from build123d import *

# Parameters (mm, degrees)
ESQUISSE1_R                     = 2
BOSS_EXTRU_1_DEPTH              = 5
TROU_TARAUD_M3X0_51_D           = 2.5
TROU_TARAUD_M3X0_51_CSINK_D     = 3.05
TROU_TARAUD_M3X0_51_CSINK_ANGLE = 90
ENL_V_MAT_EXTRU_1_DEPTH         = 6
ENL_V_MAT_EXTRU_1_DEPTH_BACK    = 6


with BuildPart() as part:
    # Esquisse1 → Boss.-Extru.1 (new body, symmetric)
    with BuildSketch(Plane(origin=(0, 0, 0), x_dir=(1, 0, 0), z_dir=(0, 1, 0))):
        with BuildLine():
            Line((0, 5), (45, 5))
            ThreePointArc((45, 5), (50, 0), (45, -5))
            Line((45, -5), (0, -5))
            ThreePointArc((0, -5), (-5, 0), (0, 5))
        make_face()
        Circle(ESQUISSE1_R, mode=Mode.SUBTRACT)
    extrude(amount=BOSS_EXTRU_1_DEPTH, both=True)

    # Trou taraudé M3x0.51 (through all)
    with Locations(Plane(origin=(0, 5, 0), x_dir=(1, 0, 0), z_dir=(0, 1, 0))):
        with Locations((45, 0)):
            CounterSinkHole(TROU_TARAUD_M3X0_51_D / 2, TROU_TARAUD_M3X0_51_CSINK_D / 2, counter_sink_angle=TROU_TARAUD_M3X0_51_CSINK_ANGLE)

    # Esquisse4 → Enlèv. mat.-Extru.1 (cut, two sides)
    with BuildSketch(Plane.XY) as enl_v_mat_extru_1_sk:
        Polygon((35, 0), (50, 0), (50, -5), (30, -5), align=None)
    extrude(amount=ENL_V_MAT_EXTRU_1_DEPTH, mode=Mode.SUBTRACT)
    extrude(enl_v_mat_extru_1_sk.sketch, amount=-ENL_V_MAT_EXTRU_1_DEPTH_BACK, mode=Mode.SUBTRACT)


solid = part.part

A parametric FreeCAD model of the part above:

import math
import FreeCAD as App
import Part
import Sketcher
Q = App.Units.Quantity


def add_polygon(sketch, points):
    """Adds a closed chain of lines whose ends are joined by coincident constraints."""
    first, n = sketch.GeometryCount, len(points)
    for a, b in zip(points, points[1:] + points[:1]):
        sketch.addGeometry(Part.LineSegment(App.Vector(*a, 0), App.Vector(*b, 0)), False)
    for i in range(n):
        sketch.addConstraint(Sketcher.Constraint("Coincident", first + i, 2, first + (i + 1) % n, 1))

doc = App.newDocument("Part")
body = doc.addObject("PartDesign::Body", "Body")

# Sketch on XZ plane
sketch1 = body.newObject("Sketcher::SketchObject", "Sketch")
sketch1.AttachmentSupport = (doc.getObject("XZ_Plane"), [""])
sketch1.MapMode = "FlatFace"
sketch1.addGeometry(Part.LineSegment(App.Vector(45, -5, 0), App.Vector(0, -5, 0)), False)
sketch1.addGeometry(Part.ArcOfCircle(Part.Circle(App.Vector(0, 0, 0), App.Vector(0, 0, 1), 5), math.radians(90), math.radians(270)), False)
sketch1.addGeometry(Part.LineSegment(App.Vector(0, 5, 0), App.Vector(45, 5, 0)), False)
sketch1.addGeometry(Part.ArcOfCircle(Part.Circle(App.Vector(45, 0, 0), App.Vector(0, 0, 1), 5), math.radians(-90), math.radians(90)), False)
sketch1.addGeometry(Part.Circle(App.Vector(0, 0, 0), App.Vector(0, 0, 1), 2), False)
sketch1.addConstraint(Sketcher.Constraint("Tangent", 0, 2, 1, 2))
sketch1.addConstraint(Sketcher.Constraint("Tangent", 1, 1, 2, 1))
sketch1.addConstraint(Sketcher.Constraint("Tangent", 2, 2, 3, 2))
sketch1.addConstraint(Sketcher.Constraint("Tangent", 3, 1, 0, 1))
sketch1.addConstraint(Sketcher.Constraint("Horizontal", 0))
sketch1.addConstraint(Sketcher.Constraint("Horizontal", 2))
sketch1.addConstraint(Sketcher.Constraint("Coincident", 1, 3, -1, 1))
sketch1.addConstraint(Sketcher.Constraint("Coincident", 4, 3, -1, 1))
sketch1.addConstraint(Sketcher.Constraint("Diameter", 4, Q("4 mm")))
sketch1.addConstraint(Sketcher.Constraint("Radius", 1, Q("5 mm")))
sketch1.addConstraint(Sketcher.Constraint("DistanceX", 0, 2, 0, 1, Q("45 mm")))
pad1 = body.newObject("PartDesign::Pad", "Pad")
pad1.Profile = sketch1
pad1.Length = 10
pad1.Midplane = True

# Sketch on XZ plane
sketch2 = body.newObject("Sketcher::SketchObject", "Sketch001")
sketch2.AttachmentSupport = (doc.getObject("XZ_Plane"), [""])
sketch2.MapMode = "FlatFace"
sketch2.AttachmentOffset = App.Placement(App.Vector(0, 0, -5), App.Rotation())
sketch2.addGeometry(Part.Circle(App.Vector(45, 0, 0), App.Vector(0, 0, 1), 1.25), False)
sketch2.addConstraint(Sketcher.Constraint("PointOnObject", 0, 3, -1))
sketch2.addConstraint(Sketcher.Constraint("Diameter", 0, Q("2.5 mm")))
sketch2.addConstraint(Sketcher.Constraint("DistanceX", -1, 1, 0, 3, Q("45 mm")))
doc.recompute()
hole = body.newObject("PartDesign::Hole", "Hole")
hole.Profile = sketch2
hole.ThreadType = "None"
hole.Diameter = 2.5
hole.DepthType = "ThroughAll"
hole.HoleCutType = "Countersink"
hole.HoleCutDiameter = 3.05
hole.HoleCutCountersinkAngle = 90
hole.Reversed = True

# Sketch on XY plane
sketch3 = body.newObject("Sketcher::SketchObject", "Sketch002")
sketch3.AttachmentSupport = (doc.getObject("XY_Plane"), [""])
sketch3.MapMode = "FlatFace"
add_polygon(sketch3, [(50, 0), (35, 0), (30, -5), (50, -5)])  # lines 0-3
sketch3.addConstraint(Sketcher.Constraint("Horizontal", 0))
sketch3.addConstraint(Sketcher.Constraint("Horizontal", 2))
sketch3.addConstraint(Sketcher.Constraint("Vertical", 3))
sketch3.addConstraint(Sketcher.Constraint("PointOnObject", 0, 2, -1))
sketch3.addConstraint(Sketcher.Constraint("DistanceX", 0, 2, 0, 1, Q("15 mm")))
sketch3.addConstraint(Sketcher.Constraint("DistanceX", 2, 1, 2, 2, Q("20 mm")))
sketch3.addConstraint(Sketcher.Constraint("DistanceY", 3, 1, 3, 2, Q("5 mm")))
sketch3.addConstraint(Sketcher.Constraint("DistanceX", -1, 1, 0, 2, Q("35 mm")))
pocket1 = body.newObject("PartDesign::Pocket", "Pocket")
pocket1.Profile = sketch3
pocket1.Type = "ThroughAll"
pocket1.Midplane = True

doc.recompute()
